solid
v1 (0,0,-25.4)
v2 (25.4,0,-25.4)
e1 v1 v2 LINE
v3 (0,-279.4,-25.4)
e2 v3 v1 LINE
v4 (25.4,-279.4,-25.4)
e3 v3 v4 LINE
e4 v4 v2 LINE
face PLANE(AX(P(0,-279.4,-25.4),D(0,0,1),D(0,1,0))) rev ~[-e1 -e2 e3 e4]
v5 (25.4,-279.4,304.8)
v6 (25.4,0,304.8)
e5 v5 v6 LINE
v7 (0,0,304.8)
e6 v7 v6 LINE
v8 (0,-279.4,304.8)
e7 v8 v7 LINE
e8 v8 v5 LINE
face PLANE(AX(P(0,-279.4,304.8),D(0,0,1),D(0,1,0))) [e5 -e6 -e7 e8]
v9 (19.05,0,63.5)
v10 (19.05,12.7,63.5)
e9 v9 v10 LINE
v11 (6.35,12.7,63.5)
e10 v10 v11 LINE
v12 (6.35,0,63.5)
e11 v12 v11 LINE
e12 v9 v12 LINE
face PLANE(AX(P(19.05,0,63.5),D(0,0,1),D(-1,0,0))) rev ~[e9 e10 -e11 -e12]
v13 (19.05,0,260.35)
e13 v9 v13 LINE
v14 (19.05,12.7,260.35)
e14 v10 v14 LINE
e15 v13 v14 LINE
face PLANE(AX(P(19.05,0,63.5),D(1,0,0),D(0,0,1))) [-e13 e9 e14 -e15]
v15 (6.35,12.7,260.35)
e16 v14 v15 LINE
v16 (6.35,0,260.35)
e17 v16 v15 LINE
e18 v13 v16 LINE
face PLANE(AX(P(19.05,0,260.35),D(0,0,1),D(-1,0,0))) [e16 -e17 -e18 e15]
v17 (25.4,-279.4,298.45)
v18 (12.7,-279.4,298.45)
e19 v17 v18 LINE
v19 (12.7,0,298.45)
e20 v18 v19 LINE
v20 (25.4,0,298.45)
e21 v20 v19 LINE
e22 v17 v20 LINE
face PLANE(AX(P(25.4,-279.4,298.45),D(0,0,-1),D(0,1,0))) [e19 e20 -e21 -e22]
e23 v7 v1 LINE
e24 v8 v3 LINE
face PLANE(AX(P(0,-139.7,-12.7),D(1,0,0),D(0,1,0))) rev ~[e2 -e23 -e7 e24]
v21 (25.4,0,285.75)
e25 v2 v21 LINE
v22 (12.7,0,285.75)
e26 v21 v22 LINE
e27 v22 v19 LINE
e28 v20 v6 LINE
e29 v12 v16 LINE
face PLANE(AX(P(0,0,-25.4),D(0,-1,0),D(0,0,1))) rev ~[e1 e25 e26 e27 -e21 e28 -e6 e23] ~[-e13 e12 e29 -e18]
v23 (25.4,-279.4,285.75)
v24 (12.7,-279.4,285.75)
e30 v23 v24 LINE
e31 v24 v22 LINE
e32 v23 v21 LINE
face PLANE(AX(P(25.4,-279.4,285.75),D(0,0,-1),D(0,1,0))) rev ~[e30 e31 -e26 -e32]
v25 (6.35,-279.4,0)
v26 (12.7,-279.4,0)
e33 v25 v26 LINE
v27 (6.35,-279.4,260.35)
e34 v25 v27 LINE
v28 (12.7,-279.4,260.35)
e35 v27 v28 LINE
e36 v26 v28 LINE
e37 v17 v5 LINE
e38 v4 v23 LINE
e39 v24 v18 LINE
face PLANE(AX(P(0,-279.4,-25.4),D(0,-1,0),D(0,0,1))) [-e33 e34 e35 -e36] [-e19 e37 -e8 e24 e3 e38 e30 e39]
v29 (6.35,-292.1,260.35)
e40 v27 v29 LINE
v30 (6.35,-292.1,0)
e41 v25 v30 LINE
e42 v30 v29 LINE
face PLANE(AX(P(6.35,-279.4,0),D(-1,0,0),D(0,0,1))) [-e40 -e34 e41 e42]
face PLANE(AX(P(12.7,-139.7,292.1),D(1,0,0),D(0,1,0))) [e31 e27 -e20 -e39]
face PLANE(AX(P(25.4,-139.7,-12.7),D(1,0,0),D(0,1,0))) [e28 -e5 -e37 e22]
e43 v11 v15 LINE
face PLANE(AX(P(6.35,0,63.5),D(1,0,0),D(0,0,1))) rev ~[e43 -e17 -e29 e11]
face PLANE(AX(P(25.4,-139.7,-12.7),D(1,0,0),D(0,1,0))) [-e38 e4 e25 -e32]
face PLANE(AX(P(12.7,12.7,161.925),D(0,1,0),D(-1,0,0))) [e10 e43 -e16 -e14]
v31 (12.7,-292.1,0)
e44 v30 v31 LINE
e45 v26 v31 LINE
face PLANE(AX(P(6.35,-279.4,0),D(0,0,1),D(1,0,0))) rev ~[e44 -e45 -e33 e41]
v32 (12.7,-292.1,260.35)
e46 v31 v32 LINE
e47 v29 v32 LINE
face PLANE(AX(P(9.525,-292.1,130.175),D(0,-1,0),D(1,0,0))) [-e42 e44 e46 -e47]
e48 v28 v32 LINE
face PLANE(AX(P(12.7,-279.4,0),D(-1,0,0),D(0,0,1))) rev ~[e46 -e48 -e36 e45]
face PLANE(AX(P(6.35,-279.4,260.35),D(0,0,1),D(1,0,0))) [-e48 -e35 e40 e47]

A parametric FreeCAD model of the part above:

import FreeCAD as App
import Part
import Sketcher
from FreeCAD import Vector
Q = App.Units.Quantity


def add_polygon(sketch, points):
    """Adds a closed chain of lines whose ends are joined by coincident constraints."""
    first, n = sketch.GeometryCount, len(points)
    for a, b in zip(points, points[1:] + points[:1]):
        sketch.addGeometry(Part.LineSegment(App.Vector(*a, 0), App.Vector(*b, 0)), False)
    for i in range(n):
        sketch.addConstraint(Sketcher.Constraint("Coincident", first + i, 2, first + (i + 1) % n, 1))

doc = App.newDocument("Part")
params = doc.addObject("Spreadsheet::Sheet", "Params")
for row, (alias, value) in enumerate([
    ("sketch1_width", "11 in"),
    ("sketch1_height", "12 in"),
    ("pad1_length", "1 in"),
    ("sketch2_width", "11 in"),
    ("sketch2_height", "1 in"),
    ("pad2_length", "1 in"),
    ("sketch3_width", "11 in"),
    ("sketch3_height", "0.5 in"),
    ("pocket1_length", "0.5 in"),
    ("sketch4_width", "0.25 in"),
    ("sketch4_height", "10.25 in"),
    ("pad3_length", "0.5 in"),
    ("sketch5_width", "0.5 in"),
    ("sketch5_height", "7.75 in"),
    ("pad4_length", "0.5 in"),
], start=1):
    params.set(f"A{row}", alias)
    params.set(f"B{row}", "=" + value)
    params.setAlias(f"B{row}", alias)

body = doc.addObject("PartDesign::Body", "Body")

# Sketch on YZ plane
sketch1 = doc.addObject("Sketcher::SketchObject", "Sketch")
body.addObject(sketch1)
sketch1.AttachmentSupport = (doc.YZ_Plane, [""])
sketch1.MapMode = "FlatFace"
add_polygon(sketch1, [(-279, 305), (-279, 0), (0, 0), (0, 305)])  # lines 0-3
sketch1.addConstraint(Sketcher.Constraint("Vertical", 0))
sketch1.addConstraint(Sketcher.Constraint("Horizontal", 1))
sketch1.addConstraint(Sketcher.Constraint("Vertical", 2))
sketch1.addConstraint(Sketcher.Constraint("Horizontal", 3))
sketch1.addConstraint(Sketcher.Constraint("Coincident", 1, 2, -1, 1))
sketch1.addConstraint(Sketcher.Constraint("DistanceX", 1, 1, 1, 2, Q("11 in")))
sketch1.addConstraint(Sketcher.Constraint("DistanceY", 0, 2, 0, 1, Q("12 in")))
sketch1.setExpression("Constraints[9]", "Params.sketch1_width")
sketch1.setExpression("Constraints[10]", "Params.sketch1_height")
pad1 = doc.addObject("PartDesign::Pad", "Pad")
body.addObject(pad1)
pad1.Profile = sketch1
pad1.setExpression("Length", "Params.pad1_length")

# Sketch on YZ plane
sketch2 = doc.addObject("Sketcher::SketchObject", "Sketch001")
body.addObject(sketch2)
sketch2.AttachmentSupport = (doc.YZ_Plane, [""])
sketch2.MapMode = "FlatFace"
add_polygon(sketch2, [(-279, 0), (-279, -25), (0, -25), (0, 0)])  # lines 0-3
sketch2.addConstraint(Sketcher.Constraint("Vertical", 0))
sketch2.addConstraint(Sketcher.Constraint("Horizontal", 1))
sketch2.addConstraint(Sketcher.Constraint("Vertical", 2))
sketch2.addConstraint(Sketcher.Constraint("Horizontal", 3))
sketch2.addConstraint(Sketcher.Constraint("Coincident", 2, 2, -1, 1))
sketch2.addConstraint(Sketcher.Constraint("DistanceX", 1, 1, 1, 2, Q("11 in")))
sketch2.addConstraint(Sketcher.Constraint("DistanceY", 0, 2, 0, 1, Q("1 in")))
sketch2.setExpression("Constraints[9]", "Params.sketch2_width")
sketch2.setExpression("Constraints[10]", "Params.sketch2_height")
pad2 = doc.addObject("PartDesign::Pad", "Pad001")
body.addObject(pad2)
pad2.Profile = sketch2
pad2.setExpression("Length", "Params.pad2_length")

# Sketch on YZ plane
sketch3 = doc.addObject("Sketcher::SketchObject", "Sketch002")
body.addObject(sketch3)
sketch3.AttachmentSupport = (doc.YZ_Plane, [""])
sketch3.MapMode = "FlatFace"
sketch3.AttachmentOffset = App.Placement(Vector(0, 0, 1 * 25.4), App.Rotation())
add_polygon(sketch3, [(-279, 298), (-279, 286), (0, 286), (0, 298)])  # lines 0-3
sketch3.addConstraint(Sketcher.Constraint("Vertical", 0))
sketch3.addConstraint(Sketcher.Constraint("Horizontal", 1))
sketch3.addConstraint(Sketcher.Constraint("Vertical", 2))
sketch3.addConstraint(Sketcher.Constraint("Horizontal", 3))
sketch3.addConstraint(Sketcher.Constraint("PointOnObject", 1, 2, -2))
sketch3.addConstraint(Sketcher.Constraint("DistanceX", 1, 1, 1, 2, Q("11 in")))
sketch3.addConstraint(Sketcher.Constraint("DistanceY", 0, 2, 0, 1, Q("0.5 in")))
sketch3.addConstraint(Sketcher.Constraint("DistanceY", -1, 1, 0, 2, Q("11.25 in")))
sketch3.setExpression("Constraints[9]", "Params.sketch3_width")
sketch3.setExpression("Constraints[10]", "Params.sketch3_height")
pocket1 = doc.addObject("PartDesign::Pocket", "Pocket")
body.addObject(pocket1)
pocket1.Profile = sketch3
pocket1.setExpression("Length", "Params.pocket1_length")

# Sketch on XZ plane
sketch4 = doc.addObject("Sketcher::SketchObject", "Sketch003")
body.addObject(sketch4)
sketch4.AttachmentSupport = (doc.XZ_Plane, [""])
sketch4.MapMode = "FlatFace"
sketch4.AttachmentOffset = App.Placement(Vector(0, 0, 11 * 25.4), App.Rotation())
add_polygon(sketch4, [(6, 260), (6, 0), (13, 0), (13, 260)])  # lines 0-3
sketch4.addConstraint(Sketcher.Constraint("Vertical", 0))
sketch4.addConstraint(Sketcher.Constraint("Horizontal", 1))
sketch4.addConstraint(Sketcher.Constraint("Vertical", 2))
sketch4.addConstraint(Sketcher.Constraint("Horizontal", 3))
sketch4.addConstraint(Sketcher.Constraint("PointOnObject", 0, 2, -1))
sketch4.addConstraint(Sketcher.Constraint("DistanceX", 1, 1, 1, 2, Q("0.25 in")))
sketch4.addConstraint(Sketcher.Constraint("DistanceY", 0, 2, 0, 1, Q("10.25 in")))
sketch4.addConstraint(Sketcher.Constraint("DistanceX", -1, 1, 1, 2, Q("0.5 in")))
sketch4.setExpression("Constraints[9]", "Params.sketch4_width")
sketch4.setExpression("Constraints[10]", "Params.sketch4_height")
pad3 = doc.addObject("PartDesign::Pad", "Pad002")
body.addObject(pad3)
pad3.Profile = sketch4
pad3.setExpression("Length", "Params.pad3_length")

# Sketch on XZ plane
sketch5 = doc.addObject("Sketcher::SketchObject", "Sketch004")
body.addObject(sketch5)
sketch5.AttachmentSupport = (doc.XZ_Plane, [""])
sketch5.MapMode = "FlatFace"
add_polygon(sketch5, [(19, 260), (19, 64), (6, 64), (6, 260)])  # lines 0-3
sketch5.addConstraint(Sketcher.Constraint("Vertical", 0))
sketch5.addConstraint(Sketcher.Constraint("Horizontal", 1))
sketch5.addConstraint(Sketcher.Constraint("Vertical", 2))
sketch5.addConstraint(Sketcher.Constraint("Horizontal", 3))
sketch5.addConstraint(Sketcher.Constraint("DistanceX", 1, 2, 1, 1, Q("0.5 in")))
sketch5.addConstraint(Sketcher.Constraint("DistanceY", 0, 2, 0, 1, Q("7.75 in")))
sketch5.addConstraint(Sketcher.Constraint("DistanceY", -1, 1, 0, 2, Q("2.5 in")))
sketch5.addConstraint(Sketcher.Constraint("DistanceX", -1, 1, 0, 2, Q("0.75 in")))
sketch5.setExpression("Constraints[8]", "Params.sketch5_width")
sketch5.setExpression("Constraints[9]", "Params.sketch5_height")
pad4 = doc.addObject("PartDesign::Pad", "Pad003")
body.addObject(pad4)
pad4.Profile = sketch5
pad4.setExpression("Length", "Params.pad4_length")
pad4.Reversed = True

doc.recompute()
